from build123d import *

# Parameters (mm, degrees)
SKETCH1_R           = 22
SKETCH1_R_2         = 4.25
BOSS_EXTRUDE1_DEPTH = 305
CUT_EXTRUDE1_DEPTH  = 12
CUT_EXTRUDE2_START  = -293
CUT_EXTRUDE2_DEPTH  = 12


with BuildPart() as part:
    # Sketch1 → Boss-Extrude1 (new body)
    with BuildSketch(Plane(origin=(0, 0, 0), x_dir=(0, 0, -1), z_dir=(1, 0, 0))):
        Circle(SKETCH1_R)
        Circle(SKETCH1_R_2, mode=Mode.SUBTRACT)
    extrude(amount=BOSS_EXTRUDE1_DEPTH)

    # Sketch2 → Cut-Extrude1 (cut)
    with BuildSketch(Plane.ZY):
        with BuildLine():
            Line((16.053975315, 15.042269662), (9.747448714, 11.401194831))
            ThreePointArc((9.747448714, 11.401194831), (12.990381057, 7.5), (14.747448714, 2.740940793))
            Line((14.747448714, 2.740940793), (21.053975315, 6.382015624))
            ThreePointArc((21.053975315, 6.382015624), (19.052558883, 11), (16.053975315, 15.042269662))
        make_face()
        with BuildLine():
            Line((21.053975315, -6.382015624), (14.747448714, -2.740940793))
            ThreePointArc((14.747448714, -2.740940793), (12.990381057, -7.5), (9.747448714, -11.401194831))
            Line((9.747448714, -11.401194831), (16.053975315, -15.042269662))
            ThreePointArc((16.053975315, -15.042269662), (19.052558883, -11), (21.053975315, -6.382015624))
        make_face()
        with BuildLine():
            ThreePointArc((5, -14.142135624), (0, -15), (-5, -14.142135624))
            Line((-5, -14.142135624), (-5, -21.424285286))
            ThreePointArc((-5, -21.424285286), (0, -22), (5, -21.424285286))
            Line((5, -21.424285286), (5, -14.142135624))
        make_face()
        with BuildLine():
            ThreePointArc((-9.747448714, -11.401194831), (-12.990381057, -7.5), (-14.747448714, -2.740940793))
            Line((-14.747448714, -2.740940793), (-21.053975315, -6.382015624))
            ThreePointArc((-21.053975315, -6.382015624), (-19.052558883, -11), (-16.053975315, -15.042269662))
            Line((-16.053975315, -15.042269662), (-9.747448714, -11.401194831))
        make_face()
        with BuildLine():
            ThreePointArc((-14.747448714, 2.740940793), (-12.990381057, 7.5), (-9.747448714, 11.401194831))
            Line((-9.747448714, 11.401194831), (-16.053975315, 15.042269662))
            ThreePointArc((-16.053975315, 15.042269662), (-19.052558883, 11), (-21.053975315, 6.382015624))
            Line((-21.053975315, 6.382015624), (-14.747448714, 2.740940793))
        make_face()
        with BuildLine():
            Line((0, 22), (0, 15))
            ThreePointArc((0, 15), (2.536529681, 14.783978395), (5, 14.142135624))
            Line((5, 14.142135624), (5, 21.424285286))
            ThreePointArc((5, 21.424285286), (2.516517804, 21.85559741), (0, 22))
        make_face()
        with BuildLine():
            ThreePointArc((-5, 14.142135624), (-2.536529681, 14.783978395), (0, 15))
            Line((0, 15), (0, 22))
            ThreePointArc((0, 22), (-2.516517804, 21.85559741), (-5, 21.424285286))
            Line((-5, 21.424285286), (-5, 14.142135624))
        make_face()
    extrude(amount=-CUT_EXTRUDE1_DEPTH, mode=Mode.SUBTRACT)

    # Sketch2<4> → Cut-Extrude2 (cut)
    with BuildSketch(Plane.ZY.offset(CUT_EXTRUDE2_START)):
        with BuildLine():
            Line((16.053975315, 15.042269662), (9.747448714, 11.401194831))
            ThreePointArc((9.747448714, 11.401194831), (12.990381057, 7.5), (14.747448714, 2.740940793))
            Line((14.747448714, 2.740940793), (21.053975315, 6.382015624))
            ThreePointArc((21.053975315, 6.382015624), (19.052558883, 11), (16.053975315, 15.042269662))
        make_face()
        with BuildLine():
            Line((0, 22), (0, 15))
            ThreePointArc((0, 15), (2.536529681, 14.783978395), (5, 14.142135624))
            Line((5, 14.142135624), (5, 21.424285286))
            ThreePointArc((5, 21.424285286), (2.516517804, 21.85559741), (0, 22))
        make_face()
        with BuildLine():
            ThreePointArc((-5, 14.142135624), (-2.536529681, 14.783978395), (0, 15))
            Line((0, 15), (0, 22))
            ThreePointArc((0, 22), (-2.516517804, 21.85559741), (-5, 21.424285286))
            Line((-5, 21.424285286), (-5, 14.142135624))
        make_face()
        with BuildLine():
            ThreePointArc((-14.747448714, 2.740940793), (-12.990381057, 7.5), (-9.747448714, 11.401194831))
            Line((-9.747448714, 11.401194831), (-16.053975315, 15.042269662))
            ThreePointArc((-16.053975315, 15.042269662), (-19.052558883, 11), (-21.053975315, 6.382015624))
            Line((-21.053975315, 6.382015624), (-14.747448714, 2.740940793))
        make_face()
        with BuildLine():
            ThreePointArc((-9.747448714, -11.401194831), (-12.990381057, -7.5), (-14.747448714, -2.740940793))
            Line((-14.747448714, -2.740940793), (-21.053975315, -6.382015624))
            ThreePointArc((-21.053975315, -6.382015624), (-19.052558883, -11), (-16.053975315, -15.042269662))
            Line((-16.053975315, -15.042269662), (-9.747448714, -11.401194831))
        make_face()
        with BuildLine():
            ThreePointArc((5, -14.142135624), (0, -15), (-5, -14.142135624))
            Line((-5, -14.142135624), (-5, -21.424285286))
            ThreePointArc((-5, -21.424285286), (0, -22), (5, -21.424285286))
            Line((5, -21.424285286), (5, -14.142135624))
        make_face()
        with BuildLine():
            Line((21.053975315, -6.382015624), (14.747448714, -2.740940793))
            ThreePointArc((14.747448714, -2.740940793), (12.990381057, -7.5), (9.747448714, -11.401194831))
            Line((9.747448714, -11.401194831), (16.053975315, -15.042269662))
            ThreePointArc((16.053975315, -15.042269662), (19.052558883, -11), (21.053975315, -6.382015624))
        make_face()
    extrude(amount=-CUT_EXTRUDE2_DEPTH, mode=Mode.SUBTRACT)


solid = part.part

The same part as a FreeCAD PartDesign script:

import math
import FreeCAD as App
import Part
import Sketcher
from FreeCAD import Vector
Q = App.Units.Quantity

doc = App.newDocument("Part")
body = doc.addObject("PartDesign::Body", "Body")

# Sketch on YZ plane
sketch1 = body.newObject("Sketcher::SketchObject", "Sketch")
sketch1.AttachmentSupport = (doc.getObject("YZ_Plane"), [""])
sketch1.MapMode = "FlatFace"
sketch1.addGeometry(Part.Circle(Vector(0, 0, 0), Vector(0, 0, 1), 22), False)
sketch1.addGeometry(Part.Circle(Vector(0, 0, 0), Vector(0, 0, 1), 4.2), False)
sketch1.addConstraint(Sketcher.Constraint("Coincident", 0, 3, -1, 1))
sketch1.addConstraint(Sketcher.Constraint("Coincident", 1, 3, -1, 1))
sketch1.addConstraint(Sketcher.Constraint("Diameter", 0, 44.0))
sketch1.addConstraint(Sketcher.Constraint("Diameter", 1, 8.5))
pad1 = body.newObject("PartDesign::Pad", "Pad")
pad1.Profile = sketch1
pad1.Length = 305

# Sketch on YZ plane
sketch2 = body.newObject("Sketcher::SketchObject", "Sketch001")
sketch2.AttachmentSupport = (doc.getObject("YZ_Plane"), [""])
sketch2.MapMode = "FlatFace"
sketch2.addGeometry(Part.LineSegment(Vector(15, 16, 0), Vector(11, 10, 0)), False)
sketch2.addGeometry(Part.ArcOfCircle(Part.Circle(Vector(0, 0, 0), Vector(0, 0, 1), 15), math.radians(41), math.radians(79)), False)
sketch2.addGeometry(Part.LineSegment(Vector(3, 15, 0), Vector(6, 21, 0)), False)
sketch2.addGeometry(Part.ArcOfCircle(Part.Circle(Vector(0, 0, 0), Vector(0, 0, 1), 22), math.radians(47), math.radians(73)), False)
sketch2.addGeometry(Part.LineSegment(Vector(-6, 21, 0), Vector(-3, 15, 0)), False)
sketch2.addGeometry(Part.ArcOfCircle(Part.Circle(Vector(0, 0, 0), Vector(0, 0, 1), 15), math.radians(101), math.radians(139)), False)
sketch2.addGeometry(Part.LineSegment(Vector(-11, 10, 0), Vector(-15, 16, 0)), False)
sketch2.addGeometry(Part.ArcOfCircle(Part.Circle(Vector(0, 0, 0), Vector(0, 0, 1), 22), math.radians(107), math.radians(133)), False)
sketch2.addGeometry(Part.ArcOfCircle(Part.Circle(Vector(0, 0, 0), Vector(0, 0, 1), 15), math.radians(161), math.radians(199)), False)
sketch2.addGeometry(Part.LineSegment(Vector(-14, -5, 0), Vector(-21, -5, 0)), False)
sketch2.addGeometry(Part.ArcOfCircle(Part.Circle(Vector(0, 0, 0), Vector(0, 0, 1), 22), math.radians(167), math.radians(193)), False)
sketch2.addGeometry(Part.LineSegment(Vector(-21, 5, 0), Vector(-14, 5, 0)), False)
sketch2.addGeometry(Part.ArcOfCircle(Part.Circle(Vector(0, 0, 0), Vector(0, 0, 1), 15), math.radians(-139), math.radians(-101)), False)
sketch2.addGeometry(Part.LineSegment(Vector(-3, -15, 0), Vector(-6, -21, 0)), False)
sketch2.addGeometry(Part.ArcOfCircle(Part.Circle(Vector(0, 0, 0), Vector(0, 0, 1), 22), math.radians(-133), math.radians(-107)), False)
sketch2.addGeometry(Part.LineSegment(Vector(-15, -16, 0), Vector(-11, -10, 0)), False)
sketch2.addGeometry(Part.ArcOfCircle(Part.Circle(Vector(0, 0, 0), Vector(0, 0, 1), 15), math.radians(-79), math.radians(-41)), False)
sketch2.addGeometry(Part.LineSegment(Vector(11, -10, 0), Vector(15, -16, 0)), False)
sketch2.addGeometry(Part.ArcOfCircle(Part.Circle(Vector(0, 0, 0), Vector(0, 0, 1), 22), math.radians(-73), math.radians(-47)), False)
sketch2.addGeometry(Part.LineSegment(Vector(6, -21, 0), Vector(3, -15, 0)), False)
sketch2.addGeometry(Part.ArcOfCircle(Part.Circle(Vector(0, 0, 0), Vector(0, 0, 1), 15), math.radians(0), math.radians(19.47)), False)
sketch2.addGeometry(Part.LineSegment(Vector(14, 5, 0), Vector(21, 5, 0)), False)
sketch2.addGeometry(Part.ArcOfCircle(Part.Circle(Vector(0, 0, 0), Vector(0, 0, 1), 22), math.radians(0), math.radians(13.14)), False)
sketch2.addGeometry(Part.ArcOfCircle(Part.Circle(Vector(0, 0, 0), Vector(0, 0, 1), 22), math.radians(-13.14), math.radians(0)), False)
sketch2.addGeometry(Part.LineSegment(Vector(21, -5, 0), Vector(14, -5, 0)), False)
sketch2.addGeometry(Part.ArcOfCircle(Part.Circle(Vector(0, 0, 0), Vector(0, 0, 1), 15), math.radians(-19.47), math.radians(0)), False)
sketch2.addConstraint(Sketcher.Constraint("Coincident", 0, 2, 1, 1))
sketch2.addConstraint(Sketcher.Constraint("Coincident", 1, 2, 2, 1))
sketch2.addConstraint(Sketcher.Constraint("Coincident", 2, 2, 3, 2))
sketch2.addConstraint(Sketcher.Constraint("Coincident", 3, 1, 0, 1))
sketch2.addConstraint(Sketcher.Constraint("Coincident", 4, 2, 5, 1))
sketch2.addConstraint(Sketcher.Constraint("Coincident", 5, 2, 6, 1))
sketch2.addConstraint(Sketcher.Constraint("Coincident", 6, 2, 7, 2))
sketch2.addConstraint(Sketcher.Constraint("Coincident", 7, 1, 4, 1))
sketch2.addConstraint(Sketcher.Constraint("Coincident", 8, 2, 9, 1))
sketch2.addConstraint(Sketcher.Constraint("Coincident", 9, 2, 10, 2))
sketch2.addConstraint(Sketcher.Constraint("Coincident", 10, 1, 11, 1))
sketch2.addConstraint(Sketcher.Constraint("Coincident", 11, 2, 8, 1))
sketch2.addConstraint(Sketcher.Constraint("Coincident", 12, 2, 13, 1))
sketch2.addConstraint(Sketcher.Constraint("Coincident", 13, 2, 14, 2))
sketch2.addConstraint(Sketcher.Constraint("Coincident", 14, 1, 15, 1))
sketch2.addConstraint(Sketcher.Constraint("Coincident", 15, 2, 12, 1))
sketch2.addConstraint(Sketcher.Constraint("Coincident", 16, 2, 17, 1))
sketch2.addConstraint(Sketcher.Constraint("Coincident", 17, 2, 18, 2))
sketch2.addConstraint(Sketcher.Constraint("Coincident", 18, 1, 19, 1))
sketch2.addConstraint(Sketcher.Constraint("Coincident", 19, 2, 16, 1))
sketch2.addConstraint(Sketcher.Constraint("Coincident", 20, 2, 21, 1))
sketch2.addConstraint(Sketcher.Constraint("Coincident", 21, 2, 22, 2))
sketch2.addConstraint(Sketcher.Constraint("Tangent", 22, 1, 23, 2))
sketch2.addConstraint(Sketcher.Constraint("Coincident", 23, 1, 24, 1))
sketch2.addConstraint(Sketcher.Constraint("Coincident", 24, 2, 25, 1))
sketch2.addConstraint(Sketcher.Constraint("Tangent", 25, 2, 20, 1))
sketch2.addConstraint(Sketcher.Constraint("Horizontal", 9))
sketch2.addConstraint(Sketcher.Constraint("Horizontal", 11))
sketch2.addConstraint(Sketcher.Constraint("Horizontal", 21))
sketch2.addConstraint(Sketcher.Constraint("Horizontal", 24))
sketch2.addConstraint(Sketcher.Constraint("Coincident", 1, 3, -1, 1))
sketch2.addConstraint(Sketcher.Constraint("Coincident", 3, 3, -1, 1))
sketch2.addConstraint(Sketcher.Constraint("Coincident", 5, 3, -1, 1))
sketch2.addConstraint(Sketcher.Constraint("Coincident", 7, 3, -1, 1))
sketch2.addConstraint(Sketcher.Constraint("Coincident", 8, 3, -1, 1))
sketch2.addConstraint(Sketcher.Constraint("Coincident", 10, 3, -1, 1))
sketch2.addConstraint(Sketcher.Constraint("Coincident", 12, 3, -1, 1))
sketch2.addConstraint(Sketcher.Constraint("Coincident", 14, 3, -1, 1))
sketch2.addConstraint(Sketcher.Constraint("Coincident", 16, 3, -1, 1))
sketch2.addConstraint(Sketcher.Constraint("Coincident", 18, 3, -1, 1))
sketch2.addConstraint(Sketcher.Constraint("Coincident", 20, 3, -1, 1))
sketch2.addConstraint(Sketcher.Constraint("Coincident", 22, 3, -1, 1))
sketch2.addConstraint(Sketcher.Constraint("Equal", 1, 5))
sketch2.addConstraint(Sketcher.Constraint("Equal", 3, 7))
sketch2.addConstraint(Sketcher.Constraint("Equal", 5, 8))
sketch2.addConstraint(Sketcher.Constraint("Equal", 7, 10))
sketch2.addConstraint(Sketcher.Constraint("Equal", 8, 12))
sketch2.addConstraint(Sketcher.Constraint("Equal", 10, 14))
sketch2.addConstraint(Sketcher.Constraint("Equal", 12, 16))
sketch2.addConstraint(Sketcher.Constraint("Equal", 14, 18))
sketch2.addConstraint(Sketcher.Constraint("Equal", 16, 20))
sketch2.addConstraint(Sketcher.Constraint("Equal", 18, 22))
sketch2.addConstraint(Sketcher.Constraint("Equal", 22, 23))
sketch2.addConstraint(Sketcher.Constraint("Equal", 20, 25))
sketch2.addConstraint(Sketcher.Constraint("PointOnObject", 22, 1, -1))
sketch2.addConstraint(Sketcher.Constraint("PointOnObject", 25, 2, -1))
sketch2.addConstraint(Sketcher.Constraint("Parallel", 0, 2))
sketch2.addConstraint(Sketcher.Constraint("Parallel", 4, 6))
sketch2.addConstraint(Sketcher.Constraint("Parallel", 2, 13))
sketch2.addConstraint(Sketcher.Constraint("Parallel", 13, 15))
sketch2.addConstraint(Sketcher.Constraint("Parallel", 6, 17))
sketch2.addConstraint(Sketcher.Constraint("Parallel", 17, 19))
sketch2.addConstraint(Sketcher.Constraint("Horizontal", 1, 2, 4, 2))
sketch2.addConstraint(Sketcher.Constraint("Horizontal", 0, 2, 5, 2))
sketch2.addConstraint(Sketcher.Constraint("Horizontal", 3, 1, 6, 2))
sketch2.addConstraint(Sketcher.Constraint("Horizontal", 15, 2, 16, 2))
sketch2.addConstraint(Sketcher.Constraint("Horizontal", 13, 2, 18, 1))
sketch2.addConstraint(Sketcher.Constraint("Horizontal", 11, 2, 20, 2))
sketch2.addConstraint(Sketcher.Constraint("Horizontal", 9, 2, 23, 1))
sketch2.addConstraint(Sketcher.Constraint("Vertical", 9, 2, 10, 1))
sketch2.addConstraint(Sketcher.Constraint("Vertical", 4, 2, 12, 2))
sketch2.addConstraint(Sketcher.Constraint("Vertical", 6, 2, 14, 1))
sketch2.addConstraint(Sketcher.Constraint("Equal", 0, 2))
sketch2.addConstraint(Sketcher.Constraint("Radius", 1, 15.0))
sketch2.addConstraint(Sketcher.Constraint("Radius", 3, 22.0))
sketch2.addConstraint(Sketcher.Constraint("Angle", 0, Q("-120 deg")))
sketch2.addConstraint(Sketcher.Constraint("DistanceY", 8, 2, -1, 1, 5.0))
sketch2.addConstraint(Sketcher.Constraint("DistanceY", 0, 2, 1, 2, 5.0))
pocket1 = body.newObject("PartDesign::Pocket", "Pocket")
pocket1.Profile = sketch2
pocket1.Length = 12
pocket1.Reversed = True

# Sketch on YZ plane
sketch3 = body.newObject("Sketcher::SketchObject", "Sketch002")
sketch3.AttachmentSupport = (doc.getObject("YZ_Plane"), [""])
sketch3.MapMode = "FlatFace"
sketch3.AttachmentOffset = App.Placement(Vector(0, 0, 293), App.Rotation())
sketch3.addGeometry(Part.LineSegment(Vector(15, 16, 0), Vector(11, 10, 0)), False)
sketch3.addGeometry(Part.ArcOfCircle(Part.Circle(Vector(0, 0, 0), Vector(0, 0, 1), 15), math.radians(41), math.radians(79)), False)
sketch3.addGeometry(Part.LineSegment(Vector(3, 15, 0), Vector(6, 21, 0)), False)
sketch3.addGeometry(Part.ArcOfCircle(Part.Circle(Vector(0, 0, 0), Vector(0, 0, 1), 22), math.radians(47), math.radians(73)), False)
sketch3.addGeometry(Part.ArcOfCircle(Part.Circle(Vector(0, 0, 0), Vector(0, 0, 1), 15), math.radians(0), math.radians(19.47)), False)
sketch3.addGeometry(Part.LineSegment(Vector(14, 5, 0), Vector(21, 5, 0)), False)
sketch3.addGeometry(Part.ArcOfCircle(Part.Circle(Vector(0, 0, 0), Vector(0, 0, 1), 22), math.radians(0), math.radians(13.14)), False)
sketch3.addGeometry(Part.ArcOfCircle(Part.Circle(Vector(0, 0, 0), Vector(0, 0, 1), 22), math.radians(-13.14), math.radians(0)), False)
sketch3.addGeometry(Part.LineSegment(Vector(21, -5, 0), Vector(14, -5, 0)), False)
sketch3.addGeometry(Part.ArcOfCircle(Part.Circle(Vector(0, 0, 0), Vector(0, 0, 1), 15), math.radians(-19.47), math.radians(0)), False)
sketch3.addGeometry(Part.ArcOfCircle(Part.Circle(Vector(0, 0, 0), Vector(0, 0, 1), 15), math.radians(-79), math.radians(-41)), False)
sketch3.addGeometry(Part.LineSegment(Vector(11, -10, 0), Vector(15, -16, 0)), False)
sketch3.addGeometry(Part.ArcOfCircle(Part.Circle(Vector(0, 0, 0), Vector(0, 0, 1), 22), math.radians(-73), math.radians(-47)), False)
sketch3.addGeometry(Part.LineSegment(Vector(6, -21, 0), Vector(3, -15, 0)), False)
sketch3.addGeometry(Part.ArcOfCircle(Part.Circle(Vector(0, 0, 0), Vector(0, 0, 1), 15), math.radians(-139), math.radians(-101)), False)
sketch3.addGeometry(Part.LineSegment(Vector(-3, -15, 0), Vector(-6, -21, 0)), False)
sketch3.addGeometry(Part.ArcOfCircle(Part.Circle(Vector(0, 0, 0), Vector(0, 0, 1), 22), math.radians(-133), math.radians(-107)), False)
sketch3.addGeometry(Part.LineSegment(Vector(-15, -16, 0), Vector(-11, -10, 0)), False)
sketch3.addGeometry(Part.ArcOfCircle(Part.Circle(Vector(0, 0, 0), Vector(0, 0, 1), 15), math.radians(161), math.radians(199)), False)
sketch3.addGeometry(Part.LineSegment(Vector(-14, -5, 0), Vector(-21, -5, 0)), False)
sketch3.addGeometry(Part.ArcOfCircle(Part.Circle(Vector(0, 0, 0), Vector(0, 0, 1), 22), math.radians(167), math.radians(193)), False)
sketch3.addGeometry(Part.LineSegment(Vector(-21, 5, 0), Vector(-14, 5, 0)), False)
sketch3.addGeometry(Part.LineSegment(Vector(-6, 21, 0), Vector(-3, 15, 0)), False)
sketch3.addGeometry(Part.ArcOfCircle(Part.Circle(Vector(0, 0, 0), Vector(0, 0, 1), 15), math.radians(101), math.radians(139)), False)
sketch3.addGeometry(Part.LineSegment(Vector(-11, 10, 0), Vector(-15, 16, 0)), False)
sketch3.addGeometry(Part.ArcOfCircle(Part.Circle(Vector(0, 0, 0), Vector(0, 0, 1), 22), math.radians(107), math.radians(133)), False)
sketch3.addConstraint(Sketcher.Constraint("Coincident", 0, 2, 1, 1))
sketch3.addConstraint(Sketcher.Constraint("Coincident", 1, 2, 2, 1))
sketch3.addConstraint(Sketcher.Constraint("Coincident", 2, 2, 3, 2))
sketch3.addConstraint(Sketcher.Constraint("Coincident", 3, 1, 0, 1))
sketch3.addConstraint(Sketcher.Constraint("Coincident", 4, 2, 5, 1))
sketch3.addConstraint(Sketcher.Constraint("Coincident", 5, 2, 6, 2))
sketch3.addConstraint(Sketcher.Constraint("Tangent", 6, 1, 7, 2))
sketch3.addConstraint(Sketcher.Constraint("Coincident", 7, 1, 8, 1))
sketch3.addConstraint(Sketcher.Constraint("Coincident", 8, 2, 9, 1))
sketch3.addConstraint(Sketcher.Constraint("Tangent", 9, 2, 4, 1))
sketch3.addConstraint(Sketcher.Constraint("Coincident", 10, 2, 11, 1))
sketch3.addConstraint(Sketcher.Constraint("Coincident", 11, 2, 12, 2))
sketch3.addConstraint(Sketcher.Constraint("Coincident", 12, 1, 13, 1))
sketch3.addConstraint(Sketcher.Constraint("Coincident", 13, 2, 10, 1))
sketch3.addConstraint(Sketcher.Constraint("Coincident", 14, 2, 15, 1))
sketch3.addConstraint(Sketcher.Constraint("Coincident", 15, 2, 16, 2))
sketch3.addConstraint(Sketcher.Constraint("Coincident", 16, 1, 17, 1))
sketch3.addConstraint(Sketcher.Constraint("Coincident", 17, 2, 14, 1))
sketch3.addConstraint(Sketcher.Constraint("Coincident", 18, 2, 19, 1))
sketch3.addConstraint(Sketcher.Constraint("Coincident", 19, 2, 20, 2))
sketch3.addConstraint(Sketcher.Constraint("Coincident", 20, 1, 21, 1))
sketch3.addConstraint(Sketcher.Constraint("Coincident", 21, 2, 18, 1))
sketch3.addConstraint(Sketcher.Constraint("Coincident", 22, 2, 23, 1))
sketch3.addConstraint(Sketcher.Constraint("Coincident", 23, 2, 24, 1))
sketch3.addConstraint(Sketcher.Constraint("Coincident", 24, 2, 25, 2))
sketch3.addConstraint(Sketcher.Constraint("Coincident", 25, 1, 22, 1))
sketch3.addConstraint(Sketcher.Constraint("Horizontal", 5))
sketch3.addConstraint(Sketcher.Constraint("Horizontal", 8))
sketch3.addConstraint(Sketcher.Constraint("Horizontal", 19))
sketch3.addConstraint(Sketcher.Constraint("Horizontal", 21))
sketch3.addConstraint(Sketcher.Constraint("Coincident", 1, 3, -1, 1))
sketch3.addConstraint(Sketcher.Constraint("Coincident", 3, 3, -1, 1))
sketch3.addConstraint(Sketcher.Constraint("Coincident", 4, 3, -1, 1))
sketch3.addConstraint(Sketcher.Constraint("Coincident", 6, 3, -1, 1))
sketch3.addConstraint(Sketcher.Constraint("Coincident", 10, 3, -1, 1))
sketch3.addConstraint(Sketcher.Constraint("Coincident", 12, 3, -1, 1))
sketch3.addConstraint(Sketcher.Constraint("Coincident", 14, 3, -1, 1))
sketch3.addConstraint(Sketcher.Constraint("Coincident", 16, 3, -1, 1))
sketch3.addConstraint(Sketcher.Constraint("Coincident", 18, 3, -1, 1))
sketch3.addConstraint(Sketcher.Constraint("Coincident", 20, 3, -1, 1))
sketch3.addConstraint(Sketcher.Constraint("Coincident", 23, 3, -1, 1))
sketch3.addConstraint(Sketcher.Constraint("Coincident", 25, 3, -1, 1))
sketch3.addConstraint(Sketcher.Constraint("Equal", 1, 4))
sketch3.addConstraint(Sketcher.Constraint("Equal", 3, 6))
sketch3.addConstraint(Sketcher.Constraint("Equal", 6, 7))
sketch3.addConstraint(Sketcher.Constraint("Equal", 4, 9))
sketch3.addConstraint(Sketcher.Constraint("Equal", 9, 10))
sketch3.addConstraint(Sketcher.Constraint("Equal", 7, 12))
sketch3.addConstraint(Sketcher.Constraint("Equal", 10, 14))
sketch3.addConstraint(Sketcher.Constraint("Equal", 12, 16))
sketch3.addConstraint(Sketcher.Constraint("Equal", 14, 18))
sketch3.addConstraint(Sketcher.Constraint("Equal", 16, 20))
sketch3.addConstraint(Sketcher.Constraint("Equal", 18, 23))
sketch3.addConstraint(Sketcher.Constraint("Equal", 20, 25))
sketch3.addConstraint(Sketcher.Constraint("PointOnObject", 6, 1, -1))
sketch3.addConstraint(Sketcher.Constraint("PointOnObject", 9, 2, -1))
sketch3.addConstraint(Sketcher.Constraint("Parallel", 0, 2))
sketch3.addConstraint(Sketcher.Constraint("Parallel", 11, 13))
sketch3.addConstraint(Sketcher.Constraint("Parallel", 2, 15))
sketch3.addConstraint(Sketcher.Constraint("Parallel", 15, 17))
sketch3.addConstraint(Sketcher.Constraint("Parallel", 13, 22))
sketch3.addConstraint(Sketcher.Constraint("Parallel", 22, 24))
sketch3.addConstraint(Sketcher.Constraint("Horizontal", 13, 2, 14, 2))
sketch3.addConstraint(Sketcher.Constraint("Horizontal", 12, 1, 15, 2))
sketch3.addConstraint(Sketcher.Constraint("Horizontal", 11, 2, 16, 1))
sketch3.addConstraint(Sketcher.Constraint("Horizontal", 8, 2, 18, 2))
sketch3.addConstraint(Sketcher.Constraint("Horizontal", 5, 2, 20, 1))
sketch3.addConstraint(Sketcher.Constraint("Horizontal", 1, 2, 22, 2))
sketch3.addConstraint(Sketcher.Constraint("Horizontal", 0, 2, 23, 2))
sketch3.addConstraint(Sketcher.Constraint("Vertical", 5, 2, 7, 1))
sketch3.addConstraint(Sketcher.Constraint("Vertical", 0, 2, 10, 2))
sketch3.addConstraint(Sketcher.Constraint("Vertical", 2, 2, 12, 1))
sketch3.addConstraint(Sketcher.Constraint("Equal", 0, 2))
sketch3.addConstraint(Sketcher.Constraint("Radius", 1, 15.0))
sketch3.addConstraint(Sketcher.Constraint("Radius", 3, 22.0))
sketch3.addConstraint(Sketcher.Constraint("Angle", 0, Q("-120 deg")))
sketch3.addConstraint(Sketcher.Constraint("DistanceY", -1, 1, 4, 2, 5.0))
sketch3.addConstraint(Sketcher.Constraint("DistanceY", 0, 2, 1, 2, 5.0))
pocket2 = body.newObject("PartDesign::Pocket", "Pocket001")
pocket2.Profile = sketch3
pocket2.Length = 12
pocket2.Reversed = True

doc.recompute()
